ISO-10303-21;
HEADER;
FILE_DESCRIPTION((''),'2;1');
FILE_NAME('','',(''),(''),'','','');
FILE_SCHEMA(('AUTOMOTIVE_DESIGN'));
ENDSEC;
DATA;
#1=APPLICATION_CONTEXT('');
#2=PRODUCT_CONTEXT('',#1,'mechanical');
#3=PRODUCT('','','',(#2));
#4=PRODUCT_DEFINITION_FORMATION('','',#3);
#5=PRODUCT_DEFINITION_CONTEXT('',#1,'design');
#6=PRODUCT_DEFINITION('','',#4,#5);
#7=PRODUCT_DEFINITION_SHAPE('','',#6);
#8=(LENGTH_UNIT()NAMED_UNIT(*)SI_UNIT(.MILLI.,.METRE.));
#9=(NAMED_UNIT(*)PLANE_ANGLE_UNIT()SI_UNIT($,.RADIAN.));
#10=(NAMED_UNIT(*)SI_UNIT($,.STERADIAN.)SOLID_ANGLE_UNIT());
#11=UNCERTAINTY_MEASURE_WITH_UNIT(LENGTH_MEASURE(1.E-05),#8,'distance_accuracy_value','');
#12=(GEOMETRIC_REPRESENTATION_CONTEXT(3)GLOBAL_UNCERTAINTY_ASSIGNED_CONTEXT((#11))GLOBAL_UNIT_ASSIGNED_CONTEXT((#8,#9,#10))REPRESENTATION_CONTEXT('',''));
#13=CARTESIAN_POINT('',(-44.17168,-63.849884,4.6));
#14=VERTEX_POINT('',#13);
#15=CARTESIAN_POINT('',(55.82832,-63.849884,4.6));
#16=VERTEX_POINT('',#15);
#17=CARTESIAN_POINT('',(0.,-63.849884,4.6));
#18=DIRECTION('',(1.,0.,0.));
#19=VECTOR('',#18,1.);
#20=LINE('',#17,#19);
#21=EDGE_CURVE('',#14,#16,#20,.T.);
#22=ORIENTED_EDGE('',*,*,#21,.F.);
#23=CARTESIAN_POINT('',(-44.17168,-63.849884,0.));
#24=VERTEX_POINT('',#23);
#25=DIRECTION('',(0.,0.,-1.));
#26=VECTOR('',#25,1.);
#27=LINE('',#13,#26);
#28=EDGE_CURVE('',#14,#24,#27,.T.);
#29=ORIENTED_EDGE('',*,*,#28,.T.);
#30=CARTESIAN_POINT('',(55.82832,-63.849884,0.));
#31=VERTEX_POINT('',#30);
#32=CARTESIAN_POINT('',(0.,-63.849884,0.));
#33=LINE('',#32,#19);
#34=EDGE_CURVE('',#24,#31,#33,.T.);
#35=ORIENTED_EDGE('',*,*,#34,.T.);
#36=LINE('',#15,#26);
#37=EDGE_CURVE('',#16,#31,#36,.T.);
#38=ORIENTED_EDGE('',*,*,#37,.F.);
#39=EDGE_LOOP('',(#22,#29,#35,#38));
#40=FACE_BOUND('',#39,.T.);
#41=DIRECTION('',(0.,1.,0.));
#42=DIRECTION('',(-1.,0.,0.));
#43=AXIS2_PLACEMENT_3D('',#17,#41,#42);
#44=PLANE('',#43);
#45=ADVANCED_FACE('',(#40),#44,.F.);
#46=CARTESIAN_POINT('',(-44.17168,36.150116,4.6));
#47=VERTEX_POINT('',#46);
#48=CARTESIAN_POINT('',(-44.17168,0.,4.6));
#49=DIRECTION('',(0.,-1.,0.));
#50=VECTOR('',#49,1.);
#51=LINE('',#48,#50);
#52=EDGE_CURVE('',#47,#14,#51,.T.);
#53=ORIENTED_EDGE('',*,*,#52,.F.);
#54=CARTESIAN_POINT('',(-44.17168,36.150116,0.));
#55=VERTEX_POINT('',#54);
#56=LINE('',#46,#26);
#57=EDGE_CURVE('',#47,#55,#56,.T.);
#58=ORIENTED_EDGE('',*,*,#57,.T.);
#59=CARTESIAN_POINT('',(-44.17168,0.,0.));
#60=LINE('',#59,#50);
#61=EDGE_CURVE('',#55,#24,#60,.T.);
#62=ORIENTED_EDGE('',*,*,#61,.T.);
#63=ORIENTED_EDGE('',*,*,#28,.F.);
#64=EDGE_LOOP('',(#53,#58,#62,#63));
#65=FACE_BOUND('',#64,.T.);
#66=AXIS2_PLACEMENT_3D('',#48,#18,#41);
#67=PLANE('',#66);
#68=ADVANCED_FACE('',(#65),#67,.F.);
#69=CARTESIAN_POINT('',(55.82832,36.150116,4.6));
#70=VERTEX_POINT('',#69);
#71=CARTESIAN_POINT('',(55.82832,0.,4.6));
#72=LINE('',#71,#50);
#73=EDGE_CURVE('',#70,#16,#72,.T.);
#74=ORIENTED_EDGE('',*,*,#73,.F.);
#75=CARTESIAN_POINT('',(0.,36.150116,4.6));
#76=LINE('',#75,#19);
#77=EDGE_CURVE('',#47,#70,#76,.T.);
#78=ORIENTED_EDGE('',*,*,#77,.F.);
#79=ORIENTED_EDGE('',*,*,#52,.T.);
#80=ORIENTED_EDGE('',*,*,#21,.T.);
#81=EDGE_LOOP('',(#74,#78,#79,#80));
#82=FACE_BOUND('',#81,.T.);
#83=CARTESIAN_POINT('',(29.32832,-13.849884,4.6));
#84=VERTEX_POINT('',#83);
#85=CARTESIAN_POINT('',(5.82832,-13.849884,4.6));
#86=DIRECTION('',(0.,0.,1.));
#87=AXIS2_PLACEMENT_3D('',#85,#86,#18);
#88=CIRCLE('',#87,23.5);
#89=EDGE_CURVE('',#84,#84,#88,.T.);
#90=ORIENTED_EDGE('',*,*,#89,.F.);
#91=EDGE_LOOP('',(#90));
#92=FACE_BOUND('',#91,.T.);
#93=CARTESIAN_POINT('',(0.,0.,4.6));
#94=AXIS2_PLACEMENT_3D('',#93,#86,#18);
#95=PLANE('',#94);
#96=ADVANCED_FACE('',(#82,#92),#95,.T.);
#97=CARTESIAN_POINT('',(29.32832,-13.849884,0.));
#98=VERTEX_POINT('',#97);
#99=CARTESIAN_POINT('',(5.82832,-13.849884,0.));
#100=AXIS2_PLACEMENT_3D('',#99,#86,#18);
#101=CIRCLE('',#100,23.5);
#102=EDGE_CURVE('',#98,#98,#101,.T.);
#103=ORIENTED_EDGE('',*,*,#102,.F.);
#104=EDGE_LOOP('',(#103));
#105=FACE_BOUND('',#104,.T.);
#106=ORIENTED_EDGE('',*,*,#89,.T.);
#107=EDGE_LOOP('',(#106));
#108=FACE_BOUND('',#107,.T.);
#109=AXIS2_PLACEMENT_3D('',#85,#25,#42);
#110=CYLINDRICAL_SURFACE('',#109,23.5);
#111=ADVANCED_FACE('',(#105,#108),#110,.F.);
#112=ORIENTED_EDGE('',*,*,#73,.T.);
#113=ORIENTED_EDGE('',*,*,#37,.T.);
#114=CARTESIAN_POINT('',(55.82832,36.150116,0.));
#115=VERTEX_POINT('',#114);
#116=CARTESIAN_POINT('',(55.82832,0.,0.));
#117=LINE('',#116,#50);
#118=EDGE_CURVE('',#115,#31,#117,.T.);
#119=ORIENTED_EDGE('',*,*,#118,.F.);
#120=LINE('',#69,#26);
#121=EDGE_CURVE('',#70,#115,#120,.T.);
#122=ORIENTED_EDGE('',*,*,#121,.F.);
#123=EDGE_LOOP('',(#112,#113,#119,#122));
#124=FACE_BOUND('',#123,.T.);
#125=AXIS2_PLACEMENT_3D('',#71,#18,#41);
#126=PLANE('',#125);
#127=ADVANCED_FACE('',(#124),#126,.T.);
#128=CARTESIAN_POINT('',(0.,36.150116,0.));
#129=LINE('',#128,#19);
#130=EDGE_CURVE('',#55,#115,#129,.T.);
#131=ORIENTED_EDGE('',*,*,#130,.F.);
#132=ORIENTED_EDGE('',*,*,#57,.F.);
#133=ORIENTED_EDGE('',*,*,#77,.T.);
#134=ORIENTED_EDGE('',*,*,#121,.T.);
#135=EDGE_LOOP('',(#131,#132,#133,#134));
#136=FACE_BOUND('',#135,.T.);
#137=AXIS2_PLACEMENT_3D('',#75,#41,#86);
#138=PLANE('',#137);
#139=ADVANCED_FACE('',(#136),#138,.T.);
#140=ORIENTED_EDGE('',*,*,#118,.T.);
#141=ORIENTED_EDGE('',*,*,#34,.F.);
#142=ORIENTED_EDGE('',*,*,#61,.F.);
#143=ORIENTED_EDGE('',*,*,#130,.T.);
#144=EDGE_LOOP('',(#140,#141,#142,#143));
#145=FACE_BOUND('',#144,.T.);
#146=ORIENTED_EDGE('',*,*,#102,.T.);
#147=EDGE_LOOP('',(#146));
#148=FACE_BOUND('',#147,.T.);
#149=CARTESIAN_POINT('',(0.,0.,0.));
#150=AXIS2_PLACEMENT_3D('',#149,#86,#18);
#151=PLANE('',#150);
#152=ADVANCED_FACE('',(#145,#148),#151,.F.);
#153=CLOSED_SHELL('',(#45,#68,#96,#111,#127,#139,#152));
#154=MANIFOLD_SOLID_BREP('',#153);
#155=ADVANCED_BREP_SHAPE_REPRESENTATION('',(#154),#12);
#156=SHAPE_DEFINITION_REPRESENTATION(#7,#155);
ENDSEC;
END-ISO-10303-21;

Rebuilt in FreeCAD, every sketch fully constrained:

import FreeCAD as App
import Part
import Sketcher
from FreeCAD import Vector
Q = App.Units.Quantity

doc = App.newDocument("Part")
body = doc.addObject("PartDesign::Body", "Body")

# Sketch on XY plane
sketch1 = body.newObject("Sketcher::SketchObject", "Sketch")
sketch1.AttachmentSupport = (doc.getObject("XY_Plane"), [""])
sketch1.MapMode = "FlatFace"
sketch1.addGeometry([
    Part.LineSegment(Vector(-44.17168, 36.150116, 0), Vector(-44.17168, -63.849884, 0)),  # 0
    Part.LineSegment(Vector(-44.17168, -63.849884, 0), Vector(55.82832, -63.849884, 0)),  # 1
    Part.LineSegment(Vector(55.82832, -63.849884, 0), Vector(55.82832, 36.150116, 0)),  # 2
    Part.LineSegment(Vector(55.82832, 36.150116, 0), Vector(-44.17168, 36.150116, 0)),  # 3
    Part.Circle(Vector(5.82832, -13.849884, 0), Vector(0, 0, 1), 23.5),  # 4
], False)
sketch1.addConstraint([
    Sketcher.Constraint("Coincident", 0, 2, 1, 1),
    Sketcher.Constraint("Coincident", 1, 2, 2, 1),
    Sketcher.Constraint("Coincident", 2, 2, 3, 1),
    Sketcher.Constraint("Coincident", 3, 2, 0, 1),
    Sketcher.Constraint("Vertical", 0),
    Sketcher.Constraint("Horizontal", 1),
    Sketcher.Constraint("Vertical", 2),
    Sketcher.Constraint("Horizontal", 3),
    Sketcher.Constraint("Equal", 3, 0),
    Sketcher.Constraint("Diameter", 4, Q("47 mm")),
    Sketcher.Constraint("DistanceX", 1, 1, 1, 2, Q("100 mm")),
    Sketcher.Constraint("DistanceX", 0, 2, 4, 3, Q("50 mm")),
    Sketcher.Constraint("DistanceY", 0, 2, 4, 3, Q("50 mm")),
    Sketcher.Constraint("DistanceX", -1, 1, 4, 3, Q("5.82832 mm")),
    Sketcher.Constraint("DistanceY", 4, 3, -1, 1, Q("13.849884 mm")),
])
pad1 = body.newObject("PartDesign::Pad", "Pad")
pad1.Profile = sketch1
pad1.Length = 4.6

doc.recompute()
